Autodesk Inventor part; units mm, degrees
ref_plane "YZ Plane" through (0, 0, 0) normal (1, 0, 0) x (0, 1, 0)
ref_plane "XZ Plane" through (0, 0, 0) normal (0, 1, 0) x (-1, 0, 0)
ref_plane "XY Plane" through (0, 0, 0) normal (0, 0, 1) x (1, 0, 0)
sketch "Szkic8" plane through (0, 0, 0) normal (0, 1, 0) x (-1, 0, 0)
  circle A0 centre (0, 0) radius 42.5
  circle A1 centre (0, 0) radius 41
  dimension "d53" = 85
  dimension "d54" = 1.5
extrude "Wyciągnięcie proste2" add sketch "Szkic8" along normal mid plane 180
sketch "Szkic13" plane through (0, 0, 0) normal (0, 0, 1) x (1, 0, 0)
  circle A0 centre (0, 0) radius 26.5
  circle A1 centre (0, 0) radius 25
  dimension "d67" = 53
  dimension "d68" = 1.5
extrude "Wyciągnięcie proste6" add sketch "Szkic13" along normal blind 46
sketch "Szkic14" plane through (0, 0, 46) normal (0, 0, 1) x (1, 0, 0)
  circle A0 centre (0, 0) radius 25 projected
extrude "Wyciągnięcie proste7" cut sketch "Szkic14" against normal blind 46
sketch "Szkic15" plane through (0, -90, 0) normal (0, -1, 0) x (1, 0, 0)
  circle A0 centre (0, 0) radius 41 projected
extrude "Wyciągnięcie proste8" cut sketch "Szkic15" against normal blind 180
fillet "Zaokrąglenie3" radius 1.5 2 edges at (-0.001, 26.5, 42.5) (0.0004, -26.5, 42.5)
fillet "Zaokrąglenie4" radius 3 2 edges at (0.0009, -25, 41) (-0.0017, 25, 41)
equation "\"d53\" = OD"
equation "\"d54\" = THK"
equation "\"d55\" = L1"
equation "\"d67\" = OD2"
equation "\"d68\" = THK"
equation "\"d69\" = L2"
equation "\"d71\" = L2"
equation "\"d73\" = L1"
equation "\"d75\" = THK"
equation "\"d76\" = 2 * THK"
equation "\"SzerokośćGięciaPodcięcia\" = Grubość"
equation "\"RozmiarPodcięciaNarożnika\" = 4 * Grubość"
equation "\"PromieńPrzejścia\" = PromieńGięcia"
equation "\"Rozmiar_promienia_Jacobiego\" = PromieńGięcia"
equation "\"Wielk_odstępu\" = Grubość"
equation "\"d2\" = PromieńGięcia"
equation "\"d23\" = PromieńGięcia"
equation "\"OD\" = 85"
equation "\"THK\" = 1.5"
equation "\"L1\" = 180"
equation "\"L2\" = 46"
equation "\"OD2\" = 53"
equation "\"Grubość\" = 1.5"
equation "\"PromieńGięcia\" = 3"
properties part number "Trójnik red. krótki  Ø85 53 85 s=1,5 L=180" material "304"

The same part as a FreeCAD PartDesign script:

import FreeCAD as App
import Part
import Sketcher
from FreeCAD import Vector
Q = App.Units.Quantity


def edges_at(feature, points):
    """Names of the edges that pass closest to the given points."""
    edges = feature.Shape.Edges
    near = lambda p: min(range(len(edges)), key=lambda i: edges[i].distToShape(Part.Vertex(*p))[0])
    return sorted({f"Edge{near(p) + 1}" for p in points})

doc = App.newDocument("Part")
body = doc.addObject("PartDesign::Body", "Body")

# Sketch on XZ plane
sketch1 = body.newObject("Sketcher::SketchObject", "Sketch")
sketch1.AttachmentSupport = (doc.getObject("XZ_Plane"), [""])
sketch1.MapMode = "FlatFace"
sketch1.addGeometry([
    Part.Circle(Vector(0, 0, 0), Vector(0, 0, 1), 42.5),
    Part.Circle(Vector(0, 0, 0), Vector(0, 0, 1), 41),
], False)
sketch1.addConstraint([
    Sketcher.Constraint("Coincident", 0, 3, -1, 1),
    Sketcher.Constraint("Coincident", 1, 3, -1, 1),
    Sketcher.Constraint("Diameter", 0, Q("85 mm")),
    Sketcher.Constraint("Diameter", 1, Q("82 mm")),
])
pad1 = body.newObject("PartDesign::Pad", "Pad")
pad1.Profile = sketch1
pad1.Length = 180
pad1.Midplane = True

# Sketch on XY plane
sketch2 = body.newObject("Sketcher::SketchObject", "Sketch001")
sketch2.AttachmentSupport = (doc.getObject("XY_Plane"), [""])
sketch2.MapMode = "FlatFace"
sketch2.addGeometry([
    Part.Circle(Vector(0, 0, 0), Vector(0, 0, 1), 26.5),
    Part.Circle(Vector(0, 0, 0), Vector(0, 0, 1), 25),
], False)
sketch2.addConstraint([
    Sketcher.Constraint("Coincident", 0, 3, -1, 1),
    Sketcher.Constraint("Coincident", 1, 3, -1, 1),
    Sketcher.Constraint("Diameter", 0, Q("53 mm")),
    Sketcher.Constraint("Diameter", 1, Q("50 mm")),
])
pad2 = body.newObject("PartDesign::Pad", "Pad001")
pad2.Profile = sketch2
pad2.Length = 46

# Sketch on XY plane
sketch3 = body.newObject("Sketcher::SketchObject", "Sketch002")
sketch3.AttachmentSupport = (doc.getObject("XY_Plane"), [""])
sketch3.MapMode = "FlatFace"
sketch3.AttachmentOffset = App.Placement(Vector(0, 0, 46), App.Rotation())
sketch3.addGeometry(Part.Circle(Vector(0, 0, 0), Vector(0, 0, 1), 25), False)
sketch3.addConstraint([
    Sketcher.Constraint("Coincident", 0, 3, -1, 1),
    Sketcher.Constraint("Diameter", 0, Q("50 mm")),
])
pocket1 = body.newObject("PartDesign::Pocket", "Pocket")
pocket1.Profile = sketch3
pocket1.Length = 46

# Sketch on XZ plane
sketch4 = body.newObject("Sketcher::SketchObject", "Sketch003")
sketch4.AttachmentSupport = (doc.getObject("XZ_Plane"), [""])
sketch4.MapMode = "FlatFace"
sketch4.AttachmentOffset = App.Placement(Vector(0, 0, 90), App.Rotation())
sketch4.addGeometry(Part.Circle(Vector(0, 0, 0), Vector(0, 0, 1), 41), False)
sketch4.addConstraint([
    Sketcher.Constraint("Coincident", 0, 3, -1, 1),
    Sketcher.Constraint("Diameter", 0, Q("82 mm")),
])
pocket2 = body.newObject("PartDesign::Pocket", "Pocket001")
pocket2.Profile = sketch4
pocket2.Length = 180
doc.recompute()

fillet = body.newObject("PartDesign::Fillet", "Fillet")
fillet.Base = (pocket2, edges_at(pocket2, [(-0.001, 26.5, 42.5), (0, -26.5, 42.5)]))
fillet.Radius = 1.5
doc.recompute()

fillet2 = body.newObject("PartDesign::Fillet", "Fillet001")
fillet2.Base = (fillet, edges_at(fillet, [(0.001, -25, 41), (-0.002, 25, 41)]))
fillet2.Radius = 3

doc.recompute()
